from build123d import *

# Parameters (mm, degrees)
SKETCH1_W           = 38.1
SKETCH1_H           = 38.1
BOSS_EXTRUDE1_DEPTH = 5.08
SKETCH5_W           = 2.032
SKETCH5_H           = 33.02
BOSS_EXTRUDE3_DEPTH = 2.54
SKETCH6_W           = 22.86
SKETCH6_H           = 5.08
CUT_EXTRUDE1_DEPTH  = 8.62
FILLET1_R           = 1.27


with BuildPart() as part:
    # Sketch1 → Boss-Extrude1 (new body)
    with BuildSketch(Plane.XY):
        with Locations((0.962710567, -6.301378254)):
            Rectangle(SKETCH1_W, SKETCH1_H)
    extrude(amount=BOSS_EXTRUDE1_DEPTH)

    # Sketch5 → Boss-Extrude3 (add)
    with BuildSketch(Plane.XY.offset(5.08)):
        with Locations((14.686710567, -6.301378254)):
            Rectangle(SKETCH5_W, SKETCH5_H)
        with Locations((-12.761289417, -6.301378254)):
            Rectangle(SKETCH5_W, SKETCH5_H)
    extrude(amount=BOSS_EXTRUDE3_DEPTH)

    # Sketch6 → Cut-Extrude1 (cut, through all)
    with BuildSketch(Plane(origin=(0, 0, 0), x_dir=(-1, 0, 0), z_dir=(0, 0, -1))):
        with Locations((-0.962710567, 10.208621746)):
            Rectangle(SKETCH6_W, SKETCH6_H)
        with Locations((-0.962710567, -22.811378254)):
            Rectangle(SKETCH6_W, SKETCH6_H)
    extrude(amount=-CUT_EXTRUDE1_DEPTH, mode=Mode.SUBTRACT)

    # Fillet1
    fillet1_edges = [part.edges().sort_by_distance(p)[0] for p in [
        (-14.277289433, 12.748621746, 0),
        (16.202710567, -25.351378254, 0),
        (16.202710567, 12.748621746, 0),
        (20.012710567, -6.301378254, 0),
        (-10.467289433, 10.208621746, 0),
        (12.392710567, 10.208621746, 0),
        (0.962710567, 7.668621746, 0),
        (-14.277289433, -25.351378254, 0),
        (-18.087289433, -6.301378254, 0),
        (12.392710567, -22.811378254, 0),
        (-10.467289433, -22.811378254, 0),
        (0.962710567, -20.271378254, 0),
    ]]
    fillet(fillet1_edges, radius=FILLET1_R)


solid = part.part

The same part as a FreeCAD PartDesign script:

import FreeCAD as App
import Part
import Sketcher
from FreeCAD import Vector
Q = App.Units.Quantity


def edges_at(feature, points):
    """Names of the edges that pass closest to the given points."""
    edges = feature.Shape.Edges
    near = lambda p: min(range(len(edges)), key=lambda i: edges[i].distToShape(Part.Vertex(*p))[0])
    return sorted({f"Edge{near(p) + 1}" for p in points})

doc = App.newDocument("Part")
body = doc.addObject("PartDesign::Body", "Body")

# Sketch on XY plane
sketch1 = doc.addObject("Sketcher::SketchObject", "Sketch")
body.addObject(sketch1)
sketch1.AttachmentSupport = (doc.XY_Plane, [""])
sketch1.MapMode = "FlatFace"
sketch1.addGeometry(Part.LineSegment(Vector(-18, 13, 0), Vector(-18, -25, 0)), False)
sketch1.addGeometry(Part.LineSegment(Vector(-18, -25, 0), Vector(20, -25, 0)), False)
sketch1.addGeometry(Part.LineSegment(Vector(20, -25, 0), Vector(20, 13, 0)), False)
sketch1.addGeometry(Part.LineSegment(Vector(20, 13, 0), Vector(-18, 13, 0)), False)
sketch1.addConstraint(Sketcher.Constraint("Coincident", 0, 2, 1, 1))
sketch1.addConstraint(Sketcher.Constraint("Coincident", 1, 2, 2, 1))
sketch1.addConstraint(Sketcher.Constraint("Coincident", 2, 2, 3, 1))
sketch1.addConstraint(Sketcher.Constraint("Coincident", 3, 2, 0, 1))
sketch1.addConstraint(Sketcher.Constraint("Vertical", 0))
sketch1.addConstraint(Sketcher.Constraint("Horizontal", 1))
sketch1.addConstraint(Sketcher.Constraint("Vertical", 2))
sketch1.addConstraint(Sketcher.Constraint("Horizontal", 3))
sketch1.addConstraint(Sketcher.Constraint("Equal", 3, 0))
sketch1.addConstraint(Sketcher.Constraint("DistanceX", 1, 1, 1, 2, Q("1.5 in")))
sketch1.addConstraint(Sketcher.Constraint("DistanceX", 0, 2, -1, 1, Q("18.087289 mm")))
sketch1.addConstraint(Sketcher.Constraint("DistanceY", 0, 2, -1, 1, Q("25.351378 mm")))
pad1 = doc.addObject("PartDesign::Pad", "Pad")
body.addObject(pad1)
pad1.Profile = sketch1
pad1.Length = Q("0.2 in")

# Sketch on XY plane
sketch2 = doc.addObject("Sketcher::SketchObject", "Sketch001")
body.addObject(sketch2)
sketch2.AttachmentSupport = (doc.XY_Plane, [""])
sketch2.MapMode = "FlatFace"
sketch2.AttachmentOffset = App.Placement(Vector(0, 0, 0.2 * 25.4), App.Rotation())
sketch2.addGeometry(Part.LineSegment(Vector(13.7, 10.2, 0), Vector(13.7, -22.8, 0)), False)
sketch2.addGeometry(Part.LineSegment(Vector(13.7, -22.8, 0), Vector(15.7, -22.8, 0)), False)
sketch2.addGeometry(Part.LineSegment(Vector(15.7, -22.8, 0), Vector(15.7, 10.2, 0)), False)
sketch2.addGeometry(Part.LineSegment(Vector(15.7, 10.2, 0), Vector(13.7, 10.2, 0)), False)
sketch2.addGeometry(Part.LineSegment(Vector(-13.8, 10.2, 0), Vector(-13.8, -22.8, 0)), False)
sketch2.addGeometry(Part.LineSegment(Vector(-13.8, -22.8, 0), Vector(-11.7, -22.8, 0)), False)
sketch2.addGeometry(Part.LineSegment(Vector(-11.7, -22.8, 0), Vector(-11.7, 10.2, 0)), False)
sketch2.addGeometry(Part.LineSegment(Vector(-11.7, 10.2, 0), Vector(-13.8, 10.2, 0)), False)
sketch2.addConstraint(Sketcher.Constraint("Coincident", 0, 2, 1, 1))
sketch2.addConstraint(Sketcher.Constraint("Coincident", 1, 2, 2, 1))
sketch2.addConstraint(Sketcher.Constraint("Coincident", 2, 2, 3, 1))
sketch2.addConstraint(Sketcher.Constraint("Coincident", 3, 2, 0, 1))
sketch2.addConstraint(Sketcher.Constraint("Coincident", 4, 2, 5, 1))
sketch2.addConstraint(Sketcher.Constraint("Coincident", 5, 2, 6, 1))
sketch2.addConstraint(Sketcher.Constraint("Coincident", 6, 2, 7, 1))
sketch2.addConstraint(Sketcher.Constraint("Coincident", 7, 2, 4, 1))
sketch2.addConstraint(Sketcher.Constraint("Vertical", 0))
sketch2.addConstraint(Sketcher.Constraint("Horizontal", 1))
sketch2.addConstraint(Sketcher.Constraint("Vertical", 2))
sketch2.addConstraint(Sketcher.Constraint("Horizontal", 3))
sketch2.addConstraint(Sketcher.Constraint("Vertical", 4))
sketch2.addConstraint(Sketcher.Constraint("Horizontal", 5))
sketch2.addConstraint(Sketcher.Constraint("Vertical", 6))
sketch2.addConstraint(Sketcher.Constraint("Horizontal", 7))
sketch2.addConstraint(Sketcher.Constraint("Horizontal", 1, 2, 4, 2))
sketch2.addConstraint(Sketcher.Constraint("Horizontal", 3, 2, 6, 2))
sketch2.addConstraint(Sketcher.Constraint("Equal", 3, 5))
sketch2.addConstraint(Sketcher.Constraint("DistanceY", 0, 2, 0, 1, Q("1.3 in")))
sketch2.addConstraint(Sketcher.Constraint("DistanceX", 1, 1, 1, 2, Q("0.08 in")))
sketch2.addConstraint(Sketcher.Constraint("DistanceX", 4, 2, 0, 2, Q("27.448 mm")))
sketch2.addConstraint(Sketcher.Constraint("DistanceX", -1, 1, 0, 2, Q("13.670711 mm")))
sketch2.addConstraint(Sketcher.Constraint("DistanceY", 0, 2, -1, 1, Q("22.811378 mm")))
pad2 = doc.addObject("PartDesign::Pad", "Pad001")
body.addObject(pad2)
pad2.Profile = sketch2
pad2.Length = Q("0.1 in")

# Sketch on XY plane
sketch3 = doc.addObject("Sketcher::SketchObject", "Sketch002")
body.addObject(sketch3)
sketch3.AttachmentSupport = (doc.XY_Plane, [""])
sketch3.MapMode = "FlatFace"
sketch3.addGeometry(Part.LineSegment(Vector(12, 13, 0), Vector(12, 8, 0)), False)
sketch3.addGeometry(Part.LineSegment(Vector(12, 8, 0), Vector(-10, 8, 0)), False)
sketch3.addGeometry(Part.LineSegment(Vector(-10, 8, 0), Vector(-10, 13, 0)), False)
sketch3.addGeometry(Part.LineSegment(Vector(-10, 13, 0), Vector(12, 13, 0)), False)
sketch3.addGeometry(Part.LineSegment(Vector(12, -20, 0), Vector(12, -25, 0)), False)
sketch3.addGeometry(Part.LineSegment(Vector(12, -25, 0), Vector(-10, -25, 0)), False)
sketch3.addGeometry(Part.LineSegment(Vector(-10, -25, 0), Vector(-10, -20, 0)), False)
sketch3.addGeometry(Part.LineSegment(Vector(-10, -20, 0), Vector(12, -20, 0)), False)
sketch3.addConstraint(Sketcher.Constraint("Coincident", 0, 2, 1, 1))
sketch3.addConstraint(Sketcher.Constraint("Coincident", 1, 2, 2, 1))
sketch3.addConstraint(Sketcher.Constraint("Coincident", 2, 2, 3, 1))
sketch3.addConstraint(Sketcher.Constraint("Coincident", 3, 2, 0, 1))
sketch3.addConstraint(Sketcher.Constraint("Coincident", 4, 2, 5, 1))
sketch3.addConstraint(Sketcher.Constraint("Coincident", 5, 2, 6, 1))
sketch3.addConstraint(Sketcher.Constraint("Coincident", 6, 2, 7, 1))
sketch3.addConstraint(Sketcher.Constraint("Coincident", 7, 2, 4, 1))
sketch3.addConstraint(Sketcher.Constraint("Vertical", 0))
sketch3.addConstraint(Sketcher.Constraint("Horizontal", 1))
sketch3.addConstraint(Sketcher.Constraint("Vertical", 2))
sketch3.addConstraint(Sketcher.Constraint("Horizontal", 3))
sketch3.addConstraint(Sketcher.Constraint("Vertical", 4))
sketch3.addConstraint(Sketcher.Constraint("Horizontal", 5))
sketch3.addConstraint(Sketcher.Constraint("Vertical", 6))
sketch3.addConstraint(Sketcher.Constraint("Horizontal", 7))
sketch3.addConstraint(Sketcher.Constraint("Vertical", 3, 2, 4, 2))
sketch3.addConstraint(Sketcher.Constraint("Vertical", 2, 2, 5, 2))
sketch3.addConstraint(Sketcher.Constraint("Equal", 2, 4))
sketch3.addConstraint(Sketcher.Constraint("DistanceX", 1, 2, 1, 1, Q("0.9 in")))
sketch3.addConstraint(Sketcher.Constraint("DistanceY", 0, 2, 0, 1, Q("0.2 in")))
sketch3.addConstraint(Sketcher.Constraint("DistanceY", 4, 2, 0, 2, Q("1.3 in")))
sketch3.addConstraint(Sketcher.Constraint("DistanceX", -1, 1, 0, 2, Q("12.392711 mm")))
sketch3.addConstraint(Sketcher.Constraint("DistanceY", -1, 1, 0, 2, Q("7.668622 mm")))
pocket1 = doc.addObject("PartDesign::Pocket", "Pocket")
body.addObject(pocket1)
pocket1.Profile = sketch3
pocket1.Type = "ThroughAll"
pocket1.Reversed = True
doc.recompute()

fillet = doc.addObject("PartDesign::Fillet", "Fillet")
body.addObject(fillet)
fillet.Base = (pocket1, edges_at(pocket1, [
    (-14.277, 12.749, 0),
    (16.203, -25.351, 0),
    (16.203, 12.749, 0),
    (20.013, -6.301, 0),
    (-10.467, 10.209, 0),
    (12.393, 10.209, 0),
    (0.963, 7.669, 0),
    (-14.277, -25.351, 0),
    (-18.087, -6.301, 0),
    (12.393, -22.811, 0),
    (-10.467, -22.811, 0),
    (0.963, -20.271, 0),
]))
fillet.Radius = Q("0.05 in")

doc.recompute()
